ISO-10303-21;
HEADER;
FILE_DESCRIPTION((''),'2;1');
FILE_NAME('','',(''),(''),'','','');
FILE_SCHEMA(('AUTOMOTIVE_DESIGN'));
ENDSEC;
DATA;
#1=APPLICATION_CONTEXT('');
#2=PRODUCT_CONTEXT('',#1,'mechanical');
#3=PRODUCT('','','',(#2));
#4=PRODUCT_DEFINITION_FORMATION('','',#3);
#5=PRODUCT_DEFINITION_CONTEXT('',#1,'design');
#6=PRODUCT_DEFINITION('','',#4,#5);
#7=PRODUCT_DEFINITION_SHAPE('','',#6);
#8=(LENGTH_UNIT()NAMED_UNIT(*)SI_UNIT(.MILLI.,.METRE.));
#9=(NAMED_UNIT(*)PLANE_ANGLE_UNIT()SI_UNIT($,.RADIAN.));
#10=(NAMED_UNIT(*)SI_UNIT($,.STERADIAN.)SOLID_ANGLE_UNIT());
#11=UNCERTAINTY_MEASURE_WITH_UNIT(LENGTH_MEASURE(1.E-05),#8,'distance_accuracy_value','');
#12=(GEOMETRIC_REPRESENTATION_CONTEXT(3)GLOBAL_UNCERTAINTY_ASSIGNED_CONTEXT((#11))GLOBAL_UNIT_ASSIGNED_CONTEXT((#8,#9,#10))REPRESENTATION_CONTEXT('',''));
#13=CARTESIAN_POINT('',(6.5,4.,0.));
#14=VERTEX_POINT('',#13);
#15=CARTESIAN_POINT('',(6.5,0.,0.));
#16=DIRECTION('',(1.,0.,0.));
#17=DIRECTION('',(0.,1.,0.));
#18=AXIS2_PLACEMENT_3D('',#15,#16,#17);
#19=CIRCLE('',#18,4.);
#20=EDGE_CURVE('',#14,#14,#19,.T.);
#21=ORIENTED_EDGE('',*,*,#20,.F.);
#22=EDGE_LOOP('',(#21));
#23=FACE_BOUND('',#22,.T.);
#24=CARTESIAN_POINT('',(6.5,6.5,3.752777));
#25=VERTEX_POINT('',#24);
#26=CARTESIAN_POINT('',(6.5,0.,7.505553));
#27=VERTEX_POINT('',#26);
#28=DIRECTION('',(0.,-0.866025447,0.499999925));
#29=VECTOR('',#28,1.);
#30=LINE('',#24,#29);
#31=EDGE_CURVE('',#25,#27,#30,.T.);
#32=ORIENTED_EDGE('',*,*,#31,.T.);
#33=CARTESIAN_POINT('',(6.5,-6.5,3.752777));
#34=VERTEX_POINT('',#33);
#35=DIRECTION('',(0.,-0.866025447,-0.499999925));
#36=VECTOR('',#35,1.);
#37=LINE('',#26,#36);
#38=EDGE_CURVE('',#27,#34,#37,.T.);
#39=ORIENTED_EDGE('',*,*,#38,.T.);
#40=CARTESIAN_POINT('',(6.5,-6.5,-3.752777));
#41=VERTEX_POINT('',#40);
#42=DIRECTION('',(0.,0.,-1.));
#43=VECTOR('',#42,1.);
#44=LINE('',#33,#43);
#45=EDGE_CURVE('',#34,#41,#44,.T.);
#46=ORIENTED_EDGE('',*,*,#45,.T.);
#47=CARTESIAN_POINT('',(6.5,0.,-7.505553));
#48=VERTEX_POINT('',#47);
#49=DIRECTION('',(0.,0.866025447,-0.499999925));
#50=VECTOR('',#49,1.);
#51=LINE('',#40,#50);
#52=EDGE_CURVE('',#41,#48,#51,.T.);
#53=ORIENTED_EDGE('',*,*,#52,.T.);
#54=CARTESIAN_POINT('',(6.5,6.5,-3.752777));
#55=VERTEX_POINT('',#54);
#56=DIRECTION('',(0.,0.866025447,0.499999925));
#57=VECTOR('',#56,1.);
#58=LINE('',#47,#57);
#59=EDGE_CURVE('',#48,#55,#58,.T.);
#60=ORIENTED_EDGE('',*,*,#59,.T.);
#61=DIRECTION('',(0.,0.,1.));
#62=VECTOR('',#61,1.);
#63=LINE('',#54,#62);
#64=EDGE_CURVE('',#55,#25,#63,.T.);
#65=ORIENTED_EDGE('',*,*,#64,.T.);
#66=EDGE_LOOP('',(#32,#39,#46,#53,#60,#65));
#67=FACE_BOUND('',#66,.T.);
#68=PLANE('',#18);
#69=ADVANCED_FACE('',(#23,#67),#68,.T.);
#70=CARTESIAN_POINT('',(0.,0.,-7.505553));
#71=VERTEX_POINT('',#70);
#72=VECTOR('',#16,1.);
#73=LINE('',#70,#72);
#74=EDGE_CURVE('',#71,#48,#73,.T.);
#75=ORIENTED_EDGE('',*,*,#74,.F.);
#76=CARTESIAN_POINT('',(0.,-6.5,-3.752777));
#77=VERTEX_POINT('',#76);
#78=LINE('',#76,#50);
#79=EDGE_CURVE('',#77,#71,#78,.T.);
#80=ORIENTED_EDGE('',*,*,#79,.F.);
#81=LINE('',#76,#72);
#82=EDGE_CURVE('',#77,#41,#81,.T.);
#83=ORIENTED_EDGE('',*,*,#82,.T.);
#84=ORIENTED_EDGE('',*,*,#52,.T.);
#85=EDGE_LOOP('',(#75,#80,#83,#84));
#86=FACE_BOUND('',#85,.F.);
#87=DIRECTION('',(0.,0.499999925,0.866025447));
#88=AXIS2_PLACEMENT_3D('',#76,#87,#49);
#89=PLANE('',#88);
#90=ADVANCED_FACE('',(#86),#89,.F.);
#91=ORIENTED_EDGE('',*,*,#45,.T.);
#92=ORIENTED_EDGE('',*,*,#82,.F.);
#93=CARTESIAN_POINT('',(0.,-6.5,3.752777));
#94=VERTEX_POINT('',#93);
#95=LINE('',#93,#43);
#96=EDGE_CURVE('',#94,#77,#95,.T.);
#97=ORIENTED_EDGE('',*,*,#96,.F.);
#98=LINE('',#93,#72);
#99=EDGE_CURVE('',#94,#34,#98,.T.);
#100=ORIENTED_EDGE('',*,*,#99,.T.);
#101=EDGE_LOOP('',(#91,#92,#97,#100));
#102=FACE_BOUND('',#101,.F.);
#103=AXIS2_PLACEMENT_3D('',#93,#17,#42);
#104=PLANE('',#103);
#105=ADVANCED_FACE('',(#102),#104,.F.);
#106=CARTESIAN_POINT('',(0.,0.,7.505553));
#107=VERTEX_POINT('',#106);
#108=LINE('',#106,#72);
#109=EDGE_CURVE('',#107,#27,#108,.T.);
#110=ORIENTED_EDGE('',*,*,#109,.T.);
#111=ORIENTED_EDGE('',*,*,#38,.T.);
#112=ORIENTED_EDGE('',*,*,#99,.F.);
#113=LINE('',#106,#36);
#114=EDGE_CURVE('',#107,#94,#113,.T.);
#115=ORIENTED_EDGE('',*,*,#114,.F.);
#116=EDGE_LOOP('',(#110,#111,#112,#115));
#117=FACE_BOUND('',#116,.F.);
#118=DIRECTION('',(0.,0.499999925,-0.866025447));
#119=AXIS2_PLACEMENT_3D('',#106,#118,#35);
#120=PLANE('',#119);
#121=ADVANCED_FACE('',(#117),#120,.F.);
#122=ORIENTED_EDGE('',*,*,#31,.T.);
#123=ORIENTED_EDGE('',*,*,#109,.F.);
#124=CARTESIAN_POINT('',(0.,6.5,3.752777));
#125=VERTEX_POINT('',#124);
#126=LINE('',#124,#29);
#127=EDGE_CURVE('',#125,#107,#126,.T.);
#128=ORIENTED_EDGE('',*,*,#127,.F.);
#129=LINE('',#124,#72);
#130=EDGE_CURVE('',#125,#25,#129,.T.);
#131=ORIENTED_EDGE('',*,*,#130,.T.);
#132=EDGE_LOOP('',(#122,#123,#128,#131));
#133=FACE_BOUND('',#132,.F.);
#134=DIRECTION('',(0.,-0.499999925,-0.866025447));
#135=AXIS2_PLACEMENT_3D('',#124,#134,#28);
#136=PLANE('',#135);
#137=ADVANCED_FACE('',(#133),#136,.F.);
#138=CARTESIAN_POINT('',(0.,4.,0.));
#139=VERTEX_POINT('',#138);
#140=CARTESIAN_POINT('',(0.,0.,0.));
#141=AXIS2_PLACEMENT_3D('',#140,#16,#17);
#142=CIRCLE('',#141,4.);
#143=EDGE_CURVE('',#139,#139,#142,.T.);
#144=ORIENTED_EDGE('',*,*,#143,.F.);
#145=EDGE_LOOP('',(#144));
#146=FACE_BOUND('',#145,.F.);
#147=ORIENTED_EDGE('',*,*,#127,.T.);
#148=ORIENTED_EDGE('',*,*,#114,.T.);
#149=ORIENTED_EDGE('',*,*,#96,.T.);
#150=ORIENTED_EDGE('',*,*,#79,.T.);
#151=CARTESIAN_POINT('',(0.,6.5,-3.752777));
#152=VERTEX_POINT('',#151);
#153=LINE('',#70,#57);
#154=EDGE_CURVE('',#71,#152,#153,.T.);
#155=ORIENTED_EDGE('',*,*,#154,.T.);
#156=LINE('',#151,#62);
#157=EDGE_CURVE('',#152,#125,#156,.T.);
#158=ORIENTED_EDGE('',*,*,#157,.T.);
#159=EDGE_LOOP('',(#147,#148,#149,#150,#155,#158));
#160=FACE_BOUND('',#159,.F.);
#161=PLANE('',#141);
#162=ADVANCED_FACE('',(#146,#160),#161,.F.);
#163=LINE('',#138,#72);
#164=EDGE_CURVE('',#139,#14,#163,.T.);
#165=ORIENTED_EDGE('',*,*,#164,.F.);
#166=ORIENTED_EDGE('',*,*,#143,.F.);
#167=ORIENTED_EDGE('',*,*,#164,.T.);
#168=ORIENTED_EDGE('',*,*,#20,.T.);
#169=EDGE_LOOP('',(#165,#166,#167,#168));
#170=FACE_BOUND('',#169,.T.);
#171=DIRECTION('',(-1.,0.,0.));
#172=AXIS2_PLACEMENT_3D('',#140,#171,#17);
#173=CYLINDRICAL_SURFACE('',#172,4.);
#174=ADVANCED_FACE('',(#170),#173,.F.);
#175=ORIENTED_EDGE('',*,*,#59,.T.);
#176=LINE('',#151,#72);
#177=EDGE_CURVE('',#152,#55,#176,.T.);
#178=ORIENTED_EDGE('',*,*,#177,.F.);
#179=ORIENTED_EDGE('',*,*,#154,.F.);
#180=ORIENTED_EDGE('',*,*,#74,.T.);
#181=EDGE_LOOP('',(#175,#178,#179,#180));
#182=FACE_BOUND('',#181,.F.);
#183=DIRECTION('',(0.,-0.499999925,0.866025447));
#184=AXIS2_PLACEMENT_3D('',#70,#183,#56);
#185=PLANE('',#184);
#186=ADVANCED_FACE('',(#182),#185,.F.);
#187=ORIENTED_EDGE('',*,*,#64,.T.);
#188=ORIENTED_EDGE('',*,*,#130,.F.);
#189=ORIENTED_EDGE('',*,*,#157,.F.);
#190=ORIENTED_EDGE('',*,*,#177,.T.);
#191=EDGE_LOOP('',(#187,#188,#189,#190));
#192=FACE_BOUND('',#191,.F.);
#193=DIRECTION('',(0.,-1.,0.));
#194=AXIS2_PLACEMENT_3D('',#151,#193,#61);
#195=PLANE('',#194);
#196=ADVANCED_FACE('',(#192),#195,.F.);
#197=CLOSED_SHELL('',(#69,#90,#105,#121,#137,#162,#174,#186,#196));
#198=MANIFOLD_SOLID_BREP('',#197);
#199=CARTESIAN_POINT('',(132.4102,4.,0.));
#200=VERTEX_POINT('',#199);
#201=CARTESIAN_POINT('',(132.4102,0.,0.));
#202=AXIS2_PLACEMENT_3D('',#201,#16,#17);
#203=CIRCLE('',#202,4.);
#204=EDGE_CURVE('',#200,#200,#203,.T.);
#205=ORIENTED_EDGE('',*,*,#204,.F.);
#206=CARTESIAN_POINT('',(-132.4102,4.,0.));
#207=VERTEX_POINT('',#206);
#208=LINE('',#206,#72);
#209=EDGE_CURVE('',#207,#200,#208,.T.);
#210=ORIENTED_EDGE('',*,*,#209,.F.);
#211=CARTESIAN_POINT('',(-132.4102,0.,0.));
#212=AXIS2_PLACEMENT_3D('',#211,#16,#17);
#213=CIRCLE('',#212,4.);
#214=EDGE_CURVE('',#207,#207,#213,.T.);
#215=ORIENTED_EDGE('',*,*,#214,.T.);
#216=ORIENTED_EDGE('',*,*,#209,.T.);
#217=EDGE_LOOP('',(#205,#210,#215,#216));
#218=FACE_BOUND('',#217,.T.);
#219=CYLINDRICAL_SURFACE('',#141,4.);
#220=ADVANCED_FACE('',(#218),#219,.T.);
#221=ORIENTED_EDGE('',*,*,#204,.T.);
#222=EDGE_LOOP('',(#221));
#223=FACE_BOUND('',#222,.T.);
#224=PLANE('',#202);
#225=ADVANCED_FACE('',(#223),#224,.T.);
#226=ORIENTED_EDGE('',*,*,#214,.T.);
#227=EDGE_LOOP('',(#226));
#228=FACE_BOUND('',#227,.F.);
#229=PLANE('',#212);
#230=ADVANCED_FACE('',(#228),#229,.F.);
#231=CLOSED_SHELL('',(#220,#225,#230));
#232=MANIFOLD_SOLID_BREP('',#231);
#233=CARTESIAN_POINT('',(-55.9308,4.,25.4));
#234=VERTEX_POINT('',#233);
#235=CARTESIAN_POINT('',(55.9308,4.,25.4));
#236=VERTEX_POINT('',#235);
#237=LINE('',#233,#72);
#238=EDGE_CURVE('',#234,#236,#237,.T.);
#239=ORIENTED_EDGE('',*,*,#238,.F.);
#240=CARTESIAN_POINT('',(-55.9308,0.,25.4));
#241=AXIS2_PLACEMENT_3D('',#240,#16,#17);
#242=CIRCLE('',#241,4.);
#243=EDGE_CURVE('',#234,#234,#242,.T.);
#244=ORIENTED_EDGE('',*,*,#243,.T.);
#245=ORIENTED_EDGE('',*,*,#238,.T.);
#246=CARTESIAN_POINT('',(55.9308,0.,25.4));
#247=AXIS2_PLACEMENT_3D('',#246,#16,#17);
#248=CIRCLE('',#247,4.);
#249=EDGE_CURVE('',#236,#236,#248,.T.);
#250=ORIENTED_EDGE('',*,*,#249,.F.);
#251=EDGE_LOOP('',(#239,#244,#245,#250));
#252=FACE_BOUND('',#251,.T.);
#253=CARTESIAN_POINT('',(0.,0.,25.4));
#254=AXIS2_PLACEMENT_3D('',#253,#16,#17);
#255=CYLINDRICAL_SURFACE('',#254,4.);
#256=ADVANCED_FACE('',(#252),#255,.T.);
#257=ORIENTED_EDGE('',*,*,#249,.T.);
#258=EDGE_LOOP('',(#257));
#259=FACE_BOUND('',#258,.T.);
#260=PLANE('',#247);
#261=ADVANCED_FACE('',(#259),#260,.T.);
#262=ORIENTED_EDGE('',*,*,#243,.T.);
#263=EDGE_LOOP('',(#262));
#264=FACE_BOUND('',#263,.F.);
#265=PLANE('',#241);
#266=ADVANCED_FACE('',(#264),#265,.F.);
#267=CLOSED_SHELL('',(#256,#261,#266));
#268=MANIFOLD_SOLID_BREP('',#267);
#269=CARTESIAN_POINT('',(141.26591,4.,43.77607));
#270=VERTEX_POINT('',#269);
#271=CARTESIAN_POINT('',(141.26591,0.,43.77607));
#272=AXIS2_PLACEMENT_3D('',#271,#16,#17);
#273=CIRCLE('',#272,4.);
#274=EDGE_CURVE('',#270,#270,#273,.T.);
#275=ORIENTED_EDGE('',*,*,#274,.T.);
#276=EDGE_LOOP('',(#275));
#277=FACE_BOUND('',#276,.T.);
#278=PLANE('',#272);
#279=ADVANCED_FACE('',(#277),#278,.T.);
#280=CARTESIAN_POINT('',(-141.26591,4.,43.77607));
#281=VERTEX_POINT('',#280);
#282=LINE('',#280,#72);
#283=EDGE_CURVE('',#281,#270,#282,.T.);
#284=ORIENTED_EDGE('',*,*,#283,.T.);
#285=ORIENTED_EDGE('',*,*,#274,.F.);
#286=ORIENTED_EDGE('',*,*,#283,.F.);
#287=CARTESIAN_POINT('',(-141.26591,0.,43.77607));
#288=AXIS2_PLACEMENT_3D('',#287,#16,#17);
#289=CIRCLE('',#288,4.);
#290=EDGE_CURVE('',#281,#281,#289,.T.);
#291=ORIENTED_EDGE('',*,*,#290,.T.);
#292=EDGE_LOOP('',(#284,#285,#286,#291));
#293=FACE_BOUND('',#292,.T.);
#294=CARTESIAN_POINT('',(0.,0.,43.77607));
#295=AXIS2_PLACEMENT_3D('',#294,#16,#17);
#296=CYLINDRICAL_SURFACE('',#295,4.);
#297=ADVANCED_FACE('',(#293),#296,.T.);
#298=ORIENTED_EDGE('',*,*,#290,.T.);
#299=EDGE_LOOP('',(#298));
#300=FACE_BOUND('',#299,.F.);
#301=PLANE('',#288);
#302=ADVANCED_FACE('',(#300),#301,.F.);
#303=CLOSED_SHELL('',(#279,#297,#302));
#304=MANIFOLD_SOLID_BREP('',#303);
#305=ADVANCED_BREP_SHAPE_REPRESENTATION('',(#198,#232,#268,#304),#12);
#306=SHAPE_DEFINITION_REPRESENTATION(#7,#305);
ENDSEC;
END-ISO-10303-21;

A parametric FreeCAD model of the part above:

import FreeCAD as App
import Part
import Sketcher

V = App.Vector
Q = App.Units.Quantity

doc = App.newDocument("Part")
body = doc.addObject("PartDesign::Body", "Body")

# Sketch on YZ plane
sketch1 = body.newObject("Sketcher::SketchObject", "Sketch")
sketch1.AttachmentSupport = (doc.getObject("YZ_Plane"), [""])
sketch1.MapMode = "FlatFace"
sketch1.addGeometry(Part.Circle(V(0, 0, 0), V(0, 0, 1), 4), False)
sketch1.addConstraint([
    Sketcher.Constraint("Coincident", 0, 3, -1, 1),
    Sketcher.Constraint("Diameter", 0, Q("8 mm")),
])
pad1 = body.newObject("PartDesign::Pad", "Pad")
pad1.Profile = sketch1
pad1.Type = "TwoLengths"
pad1.Length = 132.4102
pad1.Length2 = 132.4102
body2 = doc.addObject("PartDesign::Body", "Body001")

# Sketch on YZ plane
sketch2 = body2.newObject("Sketcher::SketchObject", "Sketch001")
sketch2.AttachmentSupport = (doc.getObject("YZ_Plane001"), [""])
sketch2.MapMode = "FlatFace"
sketch2.addGeometry([
    Part.LineSegment(V(6.5, 3.8, 0), V(0, 7.5, 0)),  # 0
    Part.LineSegment(V(0, 7.5, 0), V(-6.5, 3.8, 0)),  # 1
    Part.LineSegment(V(-6.5, 3.8, 0), V(-6.5, -3.8, 0)),  # 2
    Part.LineSegment(V(-6.5, -3.8, 0), V(0, -7.5, 0)),  # 3
    Part.LineSegment(V(0, -7.5, 0), V(6.5, -3.8, 0)),  # 4
    Part.LineSegment(V(6.5, -3.8, 0), V(6.5, 3.8, 0)),  # 5
    Part.Circle(V(0, 0, 0), V(0, 0, 1), 4),  # 6
], False)
sketch2.addConstraint([
    Sketcher.Constraint("Coincident", 0, 2, 1, 1),
    Sketcher.Constraint("Coincident", 1, 2, 2, 1),
    Sketcher.Constraint("Coincident", 2, 2, 3, 1),
    Sketcher.Constraint("Coincident", 3, 2, 4, 1),
    Sketcher.Constraint("Coincident", 4, 2, 5, 1),
    Sketcher.Constraint("Coincident", 5, 2, 0, 1),
    Sketcher.Constraint("Vertical", 2),
    Sketcher.Constraint("Vertical", 5),
    Sketcher.Constraint("Coincident", 6, 3, -1, 1),
    Sketcher.Constraint("Symmetric", 0, 2, 3, 2, -1, 1),
    Sketcher.Constraint("Symmetric", 1, 2, 4, 2, -1, 1),
    Sketcher.Constraint("PointOnObject", 0, 2, -2),
    Sketcher.Constraint("Parallel", 0, 3),
    Sketcher.Constraint("Horizontal", 2, 2, 4, 2),
    Sketcher.Constraint("Diameter", 6, Q("8 mm")),
    Sketcher.Constraint("Angle", 0, Q("150.000005 deg")),
    Sketcher.Constraint("DistanceX", 2, 2, 4, 2, Q("13 mm")),
    Sketcher.Constraint("DistanceY", 2, 2, 2, 1, Q("7.505554 mm")),
])
pad2 = body2.newObject("PartDesign::Pad", "Pad001")
pad2.Profile = sketch2
pad2.Length = 6.5
body3 = doc.addObject("PartDesign::Body", "Body002")

# Sketch on YZ plane
sketch3 = body3.newObject("Sketcher::SketchObject", "Sketch002")
sketch3.AttachmentSupport = (doc.getObject("YZ_Plane002"), [""])
sketch3.MapMode = "FlatFace"
sketch3.addGeometry(Part.Circle(V(0, 25.4, 0), V(0, 0, 1), 4), False)
sketch3.addConstraint([
    Sketcher.Constraint("PointOnObject", 0, 3, -2),
    Sketcher.Constraint("Diameter", 0, Q("8 mm")),
    Sketcher.Constraint("DistanceY", -1, 1, 0, 3, Q("25.4 mm")),
])
pad3 = body3.newObject("PartDesign::Pad", "Pad002")
pad3.Profile = sketch3
pad3.Type = "TwoLengths"
pad3.Length = 55.9308
pad3.Length2 = 55.9308
body4 = doc.addObject("PartDesign::Body", "Body003")

# Sketch on YZ plane
sketch4 = body4.newObject("Sketcher::SketchObject", "Sketch003")
sketch4.AttachmentSupport = (doc.getObject("YZ_Plane003"), [""])
sketch4.MapMode = "FlatFace"
sketch4.addGeometry(Part.Circle(V(0, 43.8, 0), V(0, 0, 1), 4), False)
sketch4.addConstraint([
    Sketcher.Constraint("PointOnObject", 0, 3, -2),
    Sketcher.Constraint("Diameter", 0, Q("8 mm")),
    Sketcher.Constraint("DistanceY", -1, 1, 0, 3, Q("43.77607 mm")),
])
pad4 = body4.newObject("PartDesign::Pad", "Pad003")
pad4.Profile = sketch4
pad4.Type = "TwoLengths"
pad4.Length = 141.26591
pad4.Length2 = 141.26591

doc.recompute()
